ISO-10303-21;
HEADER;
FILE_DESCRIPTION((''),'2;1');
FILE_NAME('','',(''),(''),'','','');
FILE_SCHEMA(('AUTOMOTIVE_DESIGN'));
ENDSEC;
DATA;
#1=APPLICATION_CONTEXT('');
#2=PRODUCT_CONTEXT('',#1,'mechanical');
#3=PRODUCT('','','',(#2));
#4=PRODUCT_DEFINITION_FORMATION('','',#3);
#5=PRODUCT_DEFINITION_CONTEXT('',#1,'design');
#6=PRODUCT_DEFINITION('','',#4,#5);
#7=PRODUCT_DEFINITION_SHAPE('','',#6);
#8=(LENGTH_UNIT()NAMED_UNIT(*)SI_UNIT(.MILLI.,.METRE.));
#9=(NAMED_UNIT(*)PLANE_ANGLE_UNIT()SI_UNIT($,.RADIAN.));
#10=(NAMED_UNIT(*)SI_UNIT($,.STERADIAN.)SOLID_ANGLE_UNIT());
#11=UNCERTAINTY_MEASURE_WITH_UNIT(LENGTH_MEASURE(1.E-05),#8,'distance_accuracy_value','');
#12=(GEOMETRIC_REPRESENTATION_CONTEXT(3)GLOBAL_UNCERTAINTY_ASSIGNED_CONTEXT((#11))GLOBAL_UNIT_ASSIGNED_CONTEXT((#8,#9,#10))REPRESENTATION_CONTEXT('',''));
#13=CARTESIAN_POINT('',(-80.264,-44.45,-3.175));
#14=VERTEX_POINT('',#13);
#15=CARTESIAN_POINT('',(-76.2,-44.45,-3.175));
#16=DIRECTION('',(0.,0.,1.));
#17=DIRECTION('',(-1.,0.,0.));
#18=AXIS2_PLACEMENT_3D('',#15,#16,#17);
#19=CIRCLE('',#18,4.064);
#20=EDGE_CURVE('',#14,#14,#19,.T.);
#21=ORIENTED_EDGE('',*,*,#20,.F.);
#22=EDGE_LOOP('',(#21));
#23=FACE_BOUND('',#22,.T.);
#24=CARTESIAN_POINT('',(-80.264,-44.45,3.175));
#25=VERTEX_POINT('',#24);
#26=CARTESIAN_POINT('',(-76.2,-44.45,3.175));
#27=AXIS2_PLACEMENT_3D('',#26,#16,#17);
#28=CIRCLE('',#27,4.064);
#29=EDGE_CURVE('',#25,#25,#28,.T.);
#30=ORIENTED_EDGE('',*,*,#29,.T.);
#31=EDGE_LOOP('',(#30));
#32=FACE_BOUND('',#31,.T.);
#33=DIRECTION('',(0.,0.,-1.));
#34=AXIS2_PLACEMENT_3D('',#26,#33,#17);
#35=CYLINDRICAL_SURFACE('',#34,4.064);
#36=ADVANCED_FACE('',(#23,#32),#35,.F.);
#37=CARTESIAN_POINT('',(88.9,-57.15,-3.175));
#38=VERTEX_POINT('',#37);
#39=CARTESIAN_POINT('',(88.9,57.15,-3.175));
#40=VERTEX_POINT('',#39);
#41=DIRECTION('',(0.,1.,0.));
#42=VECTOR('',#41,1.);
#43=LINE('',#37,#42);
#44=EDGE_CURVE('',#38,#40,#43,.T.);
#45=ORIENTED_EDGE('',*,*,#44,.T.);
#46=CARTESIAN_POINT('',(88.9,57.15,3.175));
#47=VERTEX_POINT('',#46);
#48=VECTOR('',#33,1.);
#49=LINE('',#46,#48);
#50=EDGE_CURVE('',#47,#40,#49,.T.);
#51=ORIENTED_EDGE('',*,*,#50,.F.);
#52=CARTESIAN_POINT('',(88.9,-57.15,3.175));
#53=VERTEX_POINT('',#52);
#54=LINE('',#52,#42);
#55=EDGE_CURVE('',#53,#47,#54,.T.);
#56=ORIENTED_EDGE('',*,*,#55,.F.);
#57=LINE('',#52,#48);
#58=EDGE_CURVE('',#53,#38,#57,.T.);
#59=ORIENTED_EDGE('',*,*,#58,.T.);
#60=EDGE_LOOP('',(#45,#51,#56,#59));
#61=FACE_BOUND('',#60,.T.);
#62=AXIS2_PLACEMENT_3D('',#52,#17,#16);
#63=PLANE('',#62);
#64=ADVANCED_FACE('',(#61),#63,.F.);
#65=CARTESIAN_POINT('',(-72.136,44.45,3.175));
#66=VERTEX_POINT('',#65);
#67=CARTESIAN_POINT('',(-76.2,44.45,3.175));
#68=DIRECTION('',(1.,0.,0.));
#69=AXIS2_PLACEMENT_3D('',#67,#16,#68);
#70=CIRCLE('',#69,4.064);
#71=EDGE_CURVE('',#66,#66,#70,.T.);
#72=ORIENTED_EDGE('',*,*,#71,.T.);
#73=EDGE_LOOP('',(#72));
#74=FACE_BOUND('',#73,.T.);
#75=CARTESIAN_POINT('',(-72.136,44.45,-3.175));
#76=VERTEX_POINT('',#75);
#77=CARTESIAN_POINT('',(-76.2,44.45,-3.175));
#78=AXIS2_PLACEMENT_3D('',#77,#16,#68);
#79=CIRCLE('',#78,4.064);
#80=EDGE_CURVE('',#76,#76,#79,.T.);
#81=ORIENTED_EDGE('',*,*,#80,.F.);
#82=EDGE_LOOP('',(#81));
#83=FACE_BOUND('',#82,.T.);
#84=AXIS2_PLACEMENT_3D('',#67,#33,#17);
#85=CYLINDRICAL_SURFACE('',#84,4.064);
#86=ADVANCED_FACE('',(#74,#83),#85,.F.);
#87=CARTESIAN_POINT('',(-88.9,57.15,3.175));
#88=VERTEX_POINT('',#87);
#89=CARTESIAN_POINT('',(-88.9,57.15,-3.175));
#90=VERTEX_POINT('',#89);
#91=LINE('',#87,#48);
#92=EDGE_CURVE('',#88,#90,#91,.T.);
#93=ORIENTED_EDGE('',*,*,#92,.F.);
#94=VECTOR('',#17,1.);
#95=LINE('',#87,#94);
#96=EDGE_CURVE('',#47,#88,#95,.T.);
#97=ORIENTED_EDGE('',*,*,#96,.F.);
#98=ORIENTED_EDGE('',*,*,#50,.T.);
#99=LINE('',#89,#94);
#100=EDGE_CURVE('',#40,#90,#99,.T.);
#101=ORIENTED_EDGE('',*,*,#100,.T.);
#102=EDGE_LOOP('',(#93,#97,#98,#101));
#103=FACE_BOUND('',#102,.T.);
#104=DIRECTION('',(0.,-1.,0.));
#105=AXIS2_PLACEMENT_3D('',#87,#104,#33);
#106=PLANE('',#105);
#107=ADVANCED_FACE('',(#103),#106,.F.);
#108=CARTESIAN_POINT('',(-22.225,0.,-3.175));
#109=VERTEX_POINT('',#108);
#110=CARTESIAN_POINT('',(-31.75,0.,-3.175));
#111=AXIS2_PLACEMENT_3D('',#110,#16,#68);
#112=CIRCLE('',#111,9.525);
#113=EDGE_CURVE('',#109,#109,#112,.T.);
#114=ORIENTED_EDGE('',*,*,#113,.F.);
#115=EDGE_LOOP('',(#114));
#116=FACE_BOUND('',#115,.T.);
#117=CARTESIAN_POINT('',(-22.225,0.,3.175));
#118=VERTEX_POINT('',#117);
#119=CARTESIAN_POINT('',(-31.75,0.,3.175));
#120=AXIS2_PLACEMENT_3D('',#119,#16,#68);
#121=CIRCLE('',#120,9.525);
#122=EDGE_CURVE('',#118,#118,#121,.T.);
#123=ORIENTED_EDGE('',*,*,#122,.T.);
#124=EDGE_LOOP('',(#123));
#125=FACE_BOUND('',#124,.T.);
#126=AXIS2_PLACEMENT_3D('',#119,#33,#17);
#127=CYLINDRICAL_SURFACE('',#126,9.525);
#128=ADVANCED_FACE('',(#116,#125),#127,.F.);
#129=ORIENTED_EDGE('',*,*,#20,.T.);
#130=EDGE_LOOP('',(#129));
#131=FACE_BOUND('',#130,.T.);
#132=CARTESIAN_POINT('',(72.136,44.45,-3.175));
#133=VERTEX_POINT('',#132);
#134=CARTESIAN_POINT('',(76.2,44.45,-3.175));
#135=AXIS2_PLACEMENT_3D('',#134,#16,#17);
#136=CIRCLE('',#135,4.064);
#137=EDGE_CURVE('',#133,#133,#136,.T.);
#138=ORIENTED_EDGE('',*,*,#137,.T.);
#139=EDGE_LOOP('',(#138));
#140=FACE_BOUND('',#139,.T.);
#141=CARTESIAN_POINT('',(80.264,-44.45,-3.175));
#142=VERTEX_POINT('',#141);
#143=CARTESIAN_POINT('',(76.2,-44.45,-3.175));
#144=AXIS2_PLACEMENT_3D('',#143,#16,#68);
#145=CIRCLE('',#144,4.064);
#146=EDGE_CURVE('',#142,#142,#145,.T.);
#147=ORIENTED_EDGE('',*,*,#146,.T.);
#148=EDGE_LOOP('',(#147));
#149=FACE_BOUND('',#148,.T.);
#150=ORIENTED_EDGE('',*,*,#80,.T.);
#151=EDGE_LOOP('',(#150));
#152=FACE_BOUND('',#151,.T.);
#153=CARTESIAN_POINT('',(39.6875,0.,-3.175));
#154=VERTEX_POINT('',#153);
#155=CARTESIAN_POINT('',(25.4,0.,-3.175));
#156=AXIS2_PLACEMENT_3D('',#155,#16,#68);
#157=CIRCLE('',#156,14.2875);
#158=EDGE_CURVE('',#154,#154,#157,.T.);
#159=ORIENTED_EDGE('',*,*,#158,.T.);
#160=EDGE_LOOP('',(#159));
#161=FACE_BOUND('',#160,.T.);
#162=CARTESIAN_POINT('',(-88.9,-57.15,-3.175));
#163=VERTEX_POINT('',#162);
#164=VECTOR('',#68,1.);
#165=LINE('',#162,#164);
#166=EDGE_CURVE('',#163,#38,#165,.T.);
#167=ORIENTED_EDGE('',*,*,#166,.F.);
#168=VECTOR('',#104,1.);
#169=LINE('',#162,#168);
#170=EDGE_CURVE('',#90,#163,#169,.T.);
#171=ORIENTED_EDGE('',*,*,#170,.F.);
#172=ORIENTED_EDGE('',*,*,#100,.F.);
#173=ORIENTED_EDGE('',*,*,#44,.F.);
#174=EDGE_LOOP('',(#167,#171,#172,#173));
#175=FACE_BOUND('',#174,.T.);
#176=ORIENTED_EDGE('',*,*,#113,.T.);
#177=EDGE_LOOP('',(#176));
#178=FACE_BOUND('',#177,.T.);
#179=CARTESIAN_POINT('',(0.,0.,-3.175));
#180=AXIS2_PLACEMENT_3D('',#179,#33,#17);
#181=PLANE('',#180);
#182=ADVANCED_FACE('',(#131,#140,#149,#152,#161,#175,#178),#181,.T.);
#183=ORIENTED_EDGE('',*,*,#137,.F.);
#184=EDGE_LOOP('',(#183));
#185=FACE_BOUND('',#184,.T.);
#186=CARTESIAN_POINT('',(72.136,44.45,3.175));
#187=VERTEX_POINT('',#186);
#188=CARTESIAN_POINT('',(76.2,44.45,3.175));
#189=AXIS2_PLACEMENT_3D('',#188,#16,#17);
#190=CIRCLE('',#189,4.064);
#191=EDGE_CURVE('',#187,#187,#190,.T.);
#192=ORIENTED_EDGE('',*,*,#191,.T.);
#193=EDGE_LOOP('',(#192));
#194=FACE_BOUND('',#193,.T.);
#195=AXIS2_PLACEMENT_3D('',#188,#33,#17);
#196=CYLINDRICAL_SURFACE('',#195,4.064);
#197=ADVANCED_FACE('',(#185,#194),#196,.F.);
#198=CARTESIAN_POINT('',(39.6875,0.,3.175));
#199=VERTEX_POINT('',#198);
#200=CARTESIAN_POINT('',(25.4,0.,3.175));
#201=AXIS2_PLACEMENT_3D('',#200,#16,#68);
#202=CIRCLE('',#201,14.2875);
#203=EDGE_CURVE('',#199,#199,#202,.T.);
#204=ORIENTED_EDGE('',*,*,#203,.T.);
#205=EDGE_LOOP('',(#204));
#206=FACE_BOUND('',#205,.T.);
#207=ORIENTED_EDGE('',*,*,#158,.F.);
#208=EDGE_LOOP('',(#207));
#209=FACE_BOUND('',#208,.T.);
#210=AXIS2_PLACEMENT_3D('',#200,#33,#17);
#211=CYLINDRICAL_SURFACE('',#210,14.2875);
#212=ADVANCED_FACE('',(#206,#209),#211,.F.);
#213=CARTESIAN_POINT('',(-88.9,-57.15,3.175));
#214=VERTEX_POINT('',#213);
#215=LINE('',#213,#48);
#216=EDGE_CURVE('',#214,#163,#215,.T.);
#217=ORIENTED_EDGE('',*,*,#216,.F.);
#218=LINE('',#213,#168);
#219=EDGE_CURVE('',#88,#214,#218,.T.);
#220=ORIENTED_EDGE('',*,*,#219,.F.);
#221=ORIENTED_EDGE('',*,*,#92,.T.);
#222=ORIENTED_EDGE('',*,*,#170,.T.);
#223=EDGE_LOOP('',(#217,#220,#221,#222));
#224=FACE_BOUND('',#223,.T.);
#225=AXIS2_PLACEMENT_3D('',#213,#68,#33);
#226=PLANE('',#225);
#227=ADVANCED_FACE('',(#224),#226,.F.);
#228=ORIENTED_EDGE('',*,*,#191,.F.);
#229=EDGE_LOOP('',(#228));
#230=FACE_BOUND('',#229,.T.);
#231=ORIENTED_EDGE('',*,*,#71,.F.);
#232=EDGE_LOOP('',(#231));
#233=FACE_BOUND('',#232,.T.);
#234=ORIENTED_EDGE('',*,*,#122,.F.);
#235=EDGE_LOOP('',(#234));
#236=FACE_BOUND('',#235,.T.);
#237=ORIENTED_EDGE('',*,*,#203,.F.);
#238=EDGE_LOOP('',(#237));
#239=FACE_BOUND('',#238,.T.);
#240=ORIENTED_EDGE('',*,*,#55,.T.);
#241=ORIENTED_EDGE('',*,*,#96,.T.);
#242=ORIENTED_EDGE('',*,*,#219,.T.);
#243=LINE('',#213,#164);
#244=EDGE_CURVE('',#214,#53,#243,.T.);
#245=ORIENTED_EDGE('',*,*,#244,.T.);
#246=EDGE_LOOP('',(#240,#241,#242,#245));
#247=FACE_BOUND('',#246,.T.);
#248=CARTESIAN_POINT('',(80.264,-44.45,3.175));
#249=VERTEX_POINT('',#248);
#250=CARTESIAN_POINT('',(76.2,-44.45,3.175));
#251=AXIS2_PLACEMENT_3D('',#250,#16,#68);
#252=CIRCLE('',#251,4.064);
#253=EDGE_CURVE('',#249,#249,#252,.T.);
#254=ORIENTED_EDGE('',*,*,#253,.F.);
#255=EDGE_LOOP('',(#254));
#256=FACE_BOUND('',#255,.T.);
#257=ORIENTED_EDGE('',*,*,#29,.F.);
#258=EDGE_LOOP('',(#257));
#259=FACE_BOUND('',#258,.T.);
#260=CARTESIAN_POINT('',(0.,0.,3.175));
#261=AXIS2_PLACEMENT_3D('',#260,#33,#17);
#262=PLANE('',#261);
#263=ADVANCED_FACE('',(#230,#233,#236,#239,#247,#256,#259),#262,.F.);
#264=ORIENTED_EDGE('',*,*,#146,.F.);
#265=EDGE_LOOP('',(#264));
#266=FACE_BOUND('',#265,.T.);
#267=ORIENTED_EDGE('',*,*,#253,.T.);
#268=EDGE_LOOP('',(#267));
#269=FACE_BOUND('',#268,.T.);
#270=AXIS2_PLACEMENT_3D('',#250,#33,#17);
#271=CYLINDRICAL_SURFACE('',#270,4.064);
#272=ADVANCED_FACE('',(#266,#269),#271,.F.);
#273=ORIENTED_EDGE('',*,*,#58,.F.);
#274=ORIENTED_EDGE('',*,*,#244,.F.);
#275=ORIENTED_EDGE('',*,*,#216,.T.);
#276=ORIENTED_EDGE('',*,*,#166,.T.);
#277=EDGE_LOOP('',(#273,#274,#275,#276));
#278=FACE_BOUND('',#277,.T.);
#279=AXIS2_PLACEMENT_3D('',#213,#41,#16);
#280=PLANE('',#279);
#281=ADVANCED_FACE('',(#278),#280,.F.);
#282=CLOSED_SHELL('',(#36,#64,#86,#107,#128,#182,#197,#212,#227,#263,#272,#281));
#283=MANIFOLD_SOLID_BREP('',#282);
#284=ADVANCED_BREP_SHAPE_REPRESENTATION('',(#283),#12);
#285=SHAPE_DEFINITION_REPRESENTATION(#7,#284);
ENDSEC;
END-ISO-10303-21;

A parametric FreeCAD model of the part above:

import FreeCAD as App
import Part
import Sketcher
Q = App.Units.Quantity


def add_polygon(sketch, points):
    """Adds a closed chain of lines whose ends are joined by coincident constraints."""
    first, n = sketch.GeometryCount, len(points)
    for a, b in zip(points, points[1:] + points[:1]):
        sketch.addGeometry(Part.LineSegment(App.Vector(*a, 0), App.Vector(*b, 0)), False)
    for i in range(n):
        sketch.addConstraint(Sketcher.Constraint("Coincident", first + i, 2, first + (i + 1) % n, 1))

doc = App.newDocument("Part")
body = doc.addObject("PartDesign::Body", "Body")

sketch1 = body.newObject("Sketcher::SketchObject", "Sketch")
sketch1.AttachmentSupport = (doc.getObject("XY_Plane"), [""])
sketch1.MapMode = "FlatFace"
add_polygon(sketch1, [(-88.9, 57.1), (-88.9, -57.1), (88.9, -57.1), (88.9, 57.1)])
sketch1.addGeometry(Part.Circle(App.Vector(-76.2, -44.5, 0), App.Vector(0, 0, 1), 4.1), False)
sketch1.addGeometry(Part.Circle(App.Vector(76.2, -44.5, 0), App.Vector(0, 0, 1), 4.1), False)
sketch1.addGeometry(Part.Circle(App.Vector(-31.8, 0, 0), App.Vector(0, 0, 1), 9.5), False)
sketch1.addGeometry(Part.Circle(App.Vector(-76.2, 44.5, 0), App.Vector(0, 0, 1), 4.1), False)
sketch1.addGeometry(Part.Circle(App.Vector(25.4, 0, 0), App.Vector(0, 0, 1), 14.3), False)
sketch1.addGeometry(Part.Circle(App.Vector(76.2, 44.5, 0), App.Vector(0, 0, 1), 4.1), False)
sketch1.addConstraint([
    Sketcher.Constraint("Vertical", 0),
    Sketcher.Constraint("Horizontal", 1),
    Sketcher.Constraint("Vertical", 2),
    Sketcher.Constraint("Horizontal", 3),
    Sketcher.Constraint("Equal", 4, 5),
    Sketcher.Constraint("Equal", 5, 7),
    Sketcher.Constraint("Equal", 7, 9),
    Sketcher.Constraint("Symmetric", 5, 3, 7, 3, -1, 1),
    Sketcher.Constraint("Symmetric", 4, 3, 9, 3, -1, 1),
    Sketcher.Constraint("Symmetric", 0, 2, 2, 2, -1, 1),
    Sketcher.Constraint("Symmetric", 4, 3, 5, 3, -2),
    Sketcher.Constraint("PointOnObject", 6, 3, -1),
    Sketcher.Constraint("PointOnObject", 8, 3, -1),
    Sketcher.Constraint("Diameter", 4, Q("0.32 in")),
    Sketcher.Constraint("Diameter", 6, Q("0.75 in")),
    Sketcher.Constraint("DistanceX", 1, 1, 1, 2, Q("7 in")),
    Sketcher.Constraint("Diameter", 8, Q("1.125 in")),
    Sketcher.Constraint("DistanceY", 0, 2, 0, 1, Q("4.5 in")),
    Sketcher.Constraint("DistanceX", 4, 3, -1, 1, Q("3 in")),
    Sketcher.Constraint("DistanceX", -1, 1, 8, 3, Q("1 in")),
    Sketcher.Constraint("DistanceY", 0, 2, 7, 3, Q("4 in")),
    Sketcher.Constraint("DistanceX", 6, 3, -1, 1, Q("1.25 in")),
])
pad1 = body.newObject("PartDesign::Pad", "Pad")
pad1.Profile = sketch1
pad1.Length = Q("0.25 in")
pad1.Midplane = True

doc.recompute()
